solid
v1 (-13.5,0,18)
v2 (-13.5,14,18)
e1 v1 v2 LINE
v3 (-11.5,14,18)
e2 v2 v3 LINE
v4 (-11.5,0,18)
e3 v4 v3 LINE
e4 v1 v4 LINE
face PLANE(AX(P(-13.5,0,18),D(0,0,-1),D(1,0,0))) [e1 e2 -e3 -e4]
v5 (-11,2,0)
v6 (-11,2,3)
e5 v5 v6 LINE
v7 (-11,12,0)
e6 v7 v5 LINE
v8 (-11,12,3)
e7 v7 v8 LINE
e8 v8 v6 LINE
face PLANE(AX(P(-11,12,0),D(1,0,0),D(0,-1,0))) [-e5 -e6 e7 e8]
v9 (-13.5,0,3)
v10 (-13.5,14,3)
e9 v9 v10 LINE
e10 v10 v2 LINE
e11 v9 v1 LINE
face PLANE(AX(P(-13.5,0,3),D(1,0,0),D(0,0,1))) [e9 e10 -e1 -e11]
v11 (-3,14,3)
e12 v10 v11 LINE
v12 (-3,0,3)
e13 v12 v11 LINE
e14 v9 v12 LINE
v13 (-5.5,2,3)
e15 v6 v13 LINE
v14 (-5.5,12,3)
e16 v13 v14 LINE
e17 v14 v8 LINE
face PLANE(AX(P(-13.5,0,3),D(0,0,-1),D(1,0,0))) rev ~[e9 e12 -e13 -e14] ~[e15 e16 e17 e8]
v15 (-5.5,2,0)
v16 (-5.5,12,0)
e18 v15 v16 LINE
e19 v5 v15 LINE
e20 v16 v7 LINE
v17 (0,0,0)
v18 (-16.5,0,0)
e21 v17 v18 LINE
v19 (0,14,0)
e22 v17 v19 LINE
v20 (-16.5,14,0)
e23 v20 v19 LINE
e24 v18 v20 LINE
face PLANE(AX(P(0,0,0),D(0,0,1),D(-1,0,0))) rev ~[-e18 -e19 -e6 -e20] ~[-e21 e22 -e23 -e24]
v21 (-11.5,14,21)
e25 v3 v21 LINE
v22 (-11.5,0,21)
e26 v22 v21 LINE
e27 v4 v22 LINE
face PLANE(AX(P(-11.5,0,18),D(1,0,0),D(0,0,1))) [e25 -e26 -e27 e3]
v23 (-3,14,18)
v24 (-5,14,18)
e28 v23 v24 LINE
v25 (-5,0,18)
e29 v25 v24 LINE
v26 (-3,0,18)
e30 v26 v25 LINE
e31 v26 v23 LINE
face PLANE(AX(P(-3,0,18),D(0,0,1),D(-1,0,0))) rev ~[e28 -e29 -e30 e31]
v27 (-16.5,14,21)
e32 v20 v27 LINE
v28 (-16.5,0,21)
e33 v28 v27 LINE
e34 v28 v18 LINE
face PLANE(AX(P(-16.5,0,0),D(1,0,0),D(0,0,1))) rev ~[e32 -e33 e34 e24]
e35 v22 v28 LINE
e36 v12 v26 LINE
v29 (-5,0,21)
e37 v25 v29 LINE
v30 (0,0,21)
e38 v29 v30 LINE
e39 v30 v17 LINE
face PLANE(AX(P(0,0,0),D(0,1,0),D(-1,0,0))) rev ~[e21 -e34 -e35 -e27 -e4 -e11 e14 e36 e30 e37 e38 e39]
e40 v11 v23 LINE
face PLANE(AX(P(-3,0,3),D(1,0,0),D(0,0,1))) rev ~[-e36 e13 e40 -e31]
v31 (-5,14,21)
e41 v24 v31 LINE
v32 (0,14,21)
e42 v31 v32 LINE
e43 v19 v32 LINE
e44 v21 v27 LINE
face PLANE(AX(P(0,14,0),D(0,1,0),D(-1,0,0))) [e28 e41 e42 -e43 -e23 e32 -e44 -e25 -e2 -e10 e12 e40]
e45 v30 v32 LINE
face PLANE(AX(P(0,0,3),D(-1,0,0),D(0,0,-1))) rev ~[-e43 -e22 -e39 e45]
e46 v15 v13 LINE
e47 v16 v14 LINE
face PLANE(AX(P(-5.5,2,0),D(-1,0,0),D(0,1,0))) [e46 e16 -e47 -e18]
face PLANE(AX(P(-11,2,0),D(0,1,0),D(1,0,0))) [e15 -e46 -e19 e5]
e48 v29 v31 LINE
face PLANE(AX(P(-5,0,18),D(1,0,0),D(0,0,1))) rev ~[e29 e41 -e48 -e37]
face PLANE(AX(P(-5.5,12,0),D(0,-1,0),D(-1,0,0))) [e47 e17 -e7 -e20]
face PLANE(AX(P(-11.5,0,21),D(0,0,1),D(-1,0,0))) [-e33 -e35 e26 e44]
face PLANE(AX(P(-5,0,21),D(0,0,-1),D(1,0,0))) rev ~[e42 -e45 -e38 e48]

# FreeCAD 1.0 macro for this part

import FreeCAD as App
import Part
import Sketcher
from FreeCAD import Vector


def add_polygon(sketch, points):
    """Adds a closed chain of lines whose ends are joined by coincident constraints."""
    first, n = sketch.GeometryCount, len(points)
    for a, b in zip(points, points[1:] + points[:1]):
        sketch.addGeometry(Part.LineSegment(App.Vector(*a, 0), App.Vector(*b, 0)), False)
    for i in range(n):
        sketch.addConstraint(Sketcher.Constraint("Coincident", first + i, 2, first + (i + 1) % n, 1))

doc = App.newDocument("Part")
body = doc.addObject("PartDesign::Body", "Body")

sketch1 = body.newObject("Sketcher::SketchObject", "Sketch")
sketch1.AttachmentSupport = (doc.getObject("XZ_Plane"), [""])
sketch1.MapMode = "FlatFace"
add_polygon(sketch1, [(0, 0), (-16.5, 0), (-16.5, 21), (-11.5, 21), (-11.5, 18), (-13.5, 18), (-13.5, 3), (-3, 3), (-3, 18), (-5, 18), (-5, 21), (0, 21)])
sketch1.addConstraint(Sketcher.Constraint("Horizontal", 0))
sketch1.addConstraint(Sketcher.Constraint("Vertical", 1))
sketch1.addConstraint(Sketcher.Constraint("Horizontal", 2))
sketch1.addConstraint(Sketcher.Constraint("Vertical", 3))
sketch1.addConstraint(Sketcher.Constraint("Horizontal", 4))
sketch1.addConstraint(Sketcher.Constraint("Vertical", 5))
sketch1.addConstraint(Sketcher.Constraint("Horizontal", 6))
sketch1.addConstraint(Sketcher.Constraint("Vertical", 7))
sketch1.addConstraint(Sketcher.Constraint("Horizontal", 8))
sketch1.addConstraint(Sketcher.Constraint("Vertical", 9))
sketch1.addConstraint(Sketcher.Constraint("Horizontal", 10))
sketch1.addConstraint(Sketcher.Constraint("Vertical", 11))
sketch1.addConstraint(Sketcher.Constraint("Coincident", 11, 2, -1, 1))
sketch1.addConstraint(Sketcher.Constraint("Horizontal", 4, 2, 7, 2))
sketch1.addConstraint(Sketcher.Constraint("Horizontal", 2, 2, 9, 2))
sketch1.addConstraint(Sketcher.Constraint("Equal", 4, 8))
sketch1.addConstraint(Sketcher.Constraint("Equal", 2, 10))
sketch1.addConstraint(Sketcher.Constraint("DistanceX", 2, 1, 2, 2, 5.0))
sketch1.addConstraint(Sketcher.Constraint("DistanceY", 3, 2, 3, 1, 3.0))
sketch1.addConstraint(Sketcher.Constraint("DistanceX", 0, 2, 0, 1, 16.5))
sketch1.addConstraint(Sketcher.Constraint("DistanceY", -1, 1, 3, 2, 18.0))
sketch1.addConstraint(Sketcher.Constraint("DistanceY", -1, 1, 5, 2, 3.0))
sketch1.addConstraint(Sketcher.Constraint("DistanceX", 6, 2, -1, 1, 3.0))
pad1 = body.newObject("PartDesign::Pad", "Pad")
pad1.Profile = sketch1
pad1.Length = 14
pad1.Reversed = True

sketch2 = body.newObject("Sketcher::SketchObject", "Sketch001")
sketch2.AttachmentSupport = (doc.getObject("XY_Plane"), [""])
sketch2.MapMode = "FlatFace"
add_polygon(sketch2, [(-5.5, 2), (-11, 2), (-11, 12), (-5.5, 12)])
sketch2.addConstraint(Sketcher.Constraint("Horizontal", 0))
sketch2.addConstraint(Sketcher.Constraint("Vertical", 1))
sketch2.addConstraint(Sketcher.Constraint("Horizontal", 2))
sketch2.addConstraint(Sketcher.Constraint("Vertical", 3))
sketch2.addConstraint(Sketcher.Constraint("DistanceY", 1, 1, 1, 2, 10.0))
sketch2.addConstraint(Sketcher.Constraint("DistanceX", 0, 2, 0, 1, 5.5))
sketch2.addConstraint(Sketcher.Constraint("DistanceX", 2, 2, -1, 1, 5.5))
sketch2.addConstraint(Sketcher.Constraint("DistanceY", -1, 1, 0, 2, 2.0))
pocket1 = body.newObject("PartDesign::Pocket", "Pocket")
pocket1.Profile = sketch2
pocket1.Length = 10
pocket1.Reversed = True

doc.recompute()
